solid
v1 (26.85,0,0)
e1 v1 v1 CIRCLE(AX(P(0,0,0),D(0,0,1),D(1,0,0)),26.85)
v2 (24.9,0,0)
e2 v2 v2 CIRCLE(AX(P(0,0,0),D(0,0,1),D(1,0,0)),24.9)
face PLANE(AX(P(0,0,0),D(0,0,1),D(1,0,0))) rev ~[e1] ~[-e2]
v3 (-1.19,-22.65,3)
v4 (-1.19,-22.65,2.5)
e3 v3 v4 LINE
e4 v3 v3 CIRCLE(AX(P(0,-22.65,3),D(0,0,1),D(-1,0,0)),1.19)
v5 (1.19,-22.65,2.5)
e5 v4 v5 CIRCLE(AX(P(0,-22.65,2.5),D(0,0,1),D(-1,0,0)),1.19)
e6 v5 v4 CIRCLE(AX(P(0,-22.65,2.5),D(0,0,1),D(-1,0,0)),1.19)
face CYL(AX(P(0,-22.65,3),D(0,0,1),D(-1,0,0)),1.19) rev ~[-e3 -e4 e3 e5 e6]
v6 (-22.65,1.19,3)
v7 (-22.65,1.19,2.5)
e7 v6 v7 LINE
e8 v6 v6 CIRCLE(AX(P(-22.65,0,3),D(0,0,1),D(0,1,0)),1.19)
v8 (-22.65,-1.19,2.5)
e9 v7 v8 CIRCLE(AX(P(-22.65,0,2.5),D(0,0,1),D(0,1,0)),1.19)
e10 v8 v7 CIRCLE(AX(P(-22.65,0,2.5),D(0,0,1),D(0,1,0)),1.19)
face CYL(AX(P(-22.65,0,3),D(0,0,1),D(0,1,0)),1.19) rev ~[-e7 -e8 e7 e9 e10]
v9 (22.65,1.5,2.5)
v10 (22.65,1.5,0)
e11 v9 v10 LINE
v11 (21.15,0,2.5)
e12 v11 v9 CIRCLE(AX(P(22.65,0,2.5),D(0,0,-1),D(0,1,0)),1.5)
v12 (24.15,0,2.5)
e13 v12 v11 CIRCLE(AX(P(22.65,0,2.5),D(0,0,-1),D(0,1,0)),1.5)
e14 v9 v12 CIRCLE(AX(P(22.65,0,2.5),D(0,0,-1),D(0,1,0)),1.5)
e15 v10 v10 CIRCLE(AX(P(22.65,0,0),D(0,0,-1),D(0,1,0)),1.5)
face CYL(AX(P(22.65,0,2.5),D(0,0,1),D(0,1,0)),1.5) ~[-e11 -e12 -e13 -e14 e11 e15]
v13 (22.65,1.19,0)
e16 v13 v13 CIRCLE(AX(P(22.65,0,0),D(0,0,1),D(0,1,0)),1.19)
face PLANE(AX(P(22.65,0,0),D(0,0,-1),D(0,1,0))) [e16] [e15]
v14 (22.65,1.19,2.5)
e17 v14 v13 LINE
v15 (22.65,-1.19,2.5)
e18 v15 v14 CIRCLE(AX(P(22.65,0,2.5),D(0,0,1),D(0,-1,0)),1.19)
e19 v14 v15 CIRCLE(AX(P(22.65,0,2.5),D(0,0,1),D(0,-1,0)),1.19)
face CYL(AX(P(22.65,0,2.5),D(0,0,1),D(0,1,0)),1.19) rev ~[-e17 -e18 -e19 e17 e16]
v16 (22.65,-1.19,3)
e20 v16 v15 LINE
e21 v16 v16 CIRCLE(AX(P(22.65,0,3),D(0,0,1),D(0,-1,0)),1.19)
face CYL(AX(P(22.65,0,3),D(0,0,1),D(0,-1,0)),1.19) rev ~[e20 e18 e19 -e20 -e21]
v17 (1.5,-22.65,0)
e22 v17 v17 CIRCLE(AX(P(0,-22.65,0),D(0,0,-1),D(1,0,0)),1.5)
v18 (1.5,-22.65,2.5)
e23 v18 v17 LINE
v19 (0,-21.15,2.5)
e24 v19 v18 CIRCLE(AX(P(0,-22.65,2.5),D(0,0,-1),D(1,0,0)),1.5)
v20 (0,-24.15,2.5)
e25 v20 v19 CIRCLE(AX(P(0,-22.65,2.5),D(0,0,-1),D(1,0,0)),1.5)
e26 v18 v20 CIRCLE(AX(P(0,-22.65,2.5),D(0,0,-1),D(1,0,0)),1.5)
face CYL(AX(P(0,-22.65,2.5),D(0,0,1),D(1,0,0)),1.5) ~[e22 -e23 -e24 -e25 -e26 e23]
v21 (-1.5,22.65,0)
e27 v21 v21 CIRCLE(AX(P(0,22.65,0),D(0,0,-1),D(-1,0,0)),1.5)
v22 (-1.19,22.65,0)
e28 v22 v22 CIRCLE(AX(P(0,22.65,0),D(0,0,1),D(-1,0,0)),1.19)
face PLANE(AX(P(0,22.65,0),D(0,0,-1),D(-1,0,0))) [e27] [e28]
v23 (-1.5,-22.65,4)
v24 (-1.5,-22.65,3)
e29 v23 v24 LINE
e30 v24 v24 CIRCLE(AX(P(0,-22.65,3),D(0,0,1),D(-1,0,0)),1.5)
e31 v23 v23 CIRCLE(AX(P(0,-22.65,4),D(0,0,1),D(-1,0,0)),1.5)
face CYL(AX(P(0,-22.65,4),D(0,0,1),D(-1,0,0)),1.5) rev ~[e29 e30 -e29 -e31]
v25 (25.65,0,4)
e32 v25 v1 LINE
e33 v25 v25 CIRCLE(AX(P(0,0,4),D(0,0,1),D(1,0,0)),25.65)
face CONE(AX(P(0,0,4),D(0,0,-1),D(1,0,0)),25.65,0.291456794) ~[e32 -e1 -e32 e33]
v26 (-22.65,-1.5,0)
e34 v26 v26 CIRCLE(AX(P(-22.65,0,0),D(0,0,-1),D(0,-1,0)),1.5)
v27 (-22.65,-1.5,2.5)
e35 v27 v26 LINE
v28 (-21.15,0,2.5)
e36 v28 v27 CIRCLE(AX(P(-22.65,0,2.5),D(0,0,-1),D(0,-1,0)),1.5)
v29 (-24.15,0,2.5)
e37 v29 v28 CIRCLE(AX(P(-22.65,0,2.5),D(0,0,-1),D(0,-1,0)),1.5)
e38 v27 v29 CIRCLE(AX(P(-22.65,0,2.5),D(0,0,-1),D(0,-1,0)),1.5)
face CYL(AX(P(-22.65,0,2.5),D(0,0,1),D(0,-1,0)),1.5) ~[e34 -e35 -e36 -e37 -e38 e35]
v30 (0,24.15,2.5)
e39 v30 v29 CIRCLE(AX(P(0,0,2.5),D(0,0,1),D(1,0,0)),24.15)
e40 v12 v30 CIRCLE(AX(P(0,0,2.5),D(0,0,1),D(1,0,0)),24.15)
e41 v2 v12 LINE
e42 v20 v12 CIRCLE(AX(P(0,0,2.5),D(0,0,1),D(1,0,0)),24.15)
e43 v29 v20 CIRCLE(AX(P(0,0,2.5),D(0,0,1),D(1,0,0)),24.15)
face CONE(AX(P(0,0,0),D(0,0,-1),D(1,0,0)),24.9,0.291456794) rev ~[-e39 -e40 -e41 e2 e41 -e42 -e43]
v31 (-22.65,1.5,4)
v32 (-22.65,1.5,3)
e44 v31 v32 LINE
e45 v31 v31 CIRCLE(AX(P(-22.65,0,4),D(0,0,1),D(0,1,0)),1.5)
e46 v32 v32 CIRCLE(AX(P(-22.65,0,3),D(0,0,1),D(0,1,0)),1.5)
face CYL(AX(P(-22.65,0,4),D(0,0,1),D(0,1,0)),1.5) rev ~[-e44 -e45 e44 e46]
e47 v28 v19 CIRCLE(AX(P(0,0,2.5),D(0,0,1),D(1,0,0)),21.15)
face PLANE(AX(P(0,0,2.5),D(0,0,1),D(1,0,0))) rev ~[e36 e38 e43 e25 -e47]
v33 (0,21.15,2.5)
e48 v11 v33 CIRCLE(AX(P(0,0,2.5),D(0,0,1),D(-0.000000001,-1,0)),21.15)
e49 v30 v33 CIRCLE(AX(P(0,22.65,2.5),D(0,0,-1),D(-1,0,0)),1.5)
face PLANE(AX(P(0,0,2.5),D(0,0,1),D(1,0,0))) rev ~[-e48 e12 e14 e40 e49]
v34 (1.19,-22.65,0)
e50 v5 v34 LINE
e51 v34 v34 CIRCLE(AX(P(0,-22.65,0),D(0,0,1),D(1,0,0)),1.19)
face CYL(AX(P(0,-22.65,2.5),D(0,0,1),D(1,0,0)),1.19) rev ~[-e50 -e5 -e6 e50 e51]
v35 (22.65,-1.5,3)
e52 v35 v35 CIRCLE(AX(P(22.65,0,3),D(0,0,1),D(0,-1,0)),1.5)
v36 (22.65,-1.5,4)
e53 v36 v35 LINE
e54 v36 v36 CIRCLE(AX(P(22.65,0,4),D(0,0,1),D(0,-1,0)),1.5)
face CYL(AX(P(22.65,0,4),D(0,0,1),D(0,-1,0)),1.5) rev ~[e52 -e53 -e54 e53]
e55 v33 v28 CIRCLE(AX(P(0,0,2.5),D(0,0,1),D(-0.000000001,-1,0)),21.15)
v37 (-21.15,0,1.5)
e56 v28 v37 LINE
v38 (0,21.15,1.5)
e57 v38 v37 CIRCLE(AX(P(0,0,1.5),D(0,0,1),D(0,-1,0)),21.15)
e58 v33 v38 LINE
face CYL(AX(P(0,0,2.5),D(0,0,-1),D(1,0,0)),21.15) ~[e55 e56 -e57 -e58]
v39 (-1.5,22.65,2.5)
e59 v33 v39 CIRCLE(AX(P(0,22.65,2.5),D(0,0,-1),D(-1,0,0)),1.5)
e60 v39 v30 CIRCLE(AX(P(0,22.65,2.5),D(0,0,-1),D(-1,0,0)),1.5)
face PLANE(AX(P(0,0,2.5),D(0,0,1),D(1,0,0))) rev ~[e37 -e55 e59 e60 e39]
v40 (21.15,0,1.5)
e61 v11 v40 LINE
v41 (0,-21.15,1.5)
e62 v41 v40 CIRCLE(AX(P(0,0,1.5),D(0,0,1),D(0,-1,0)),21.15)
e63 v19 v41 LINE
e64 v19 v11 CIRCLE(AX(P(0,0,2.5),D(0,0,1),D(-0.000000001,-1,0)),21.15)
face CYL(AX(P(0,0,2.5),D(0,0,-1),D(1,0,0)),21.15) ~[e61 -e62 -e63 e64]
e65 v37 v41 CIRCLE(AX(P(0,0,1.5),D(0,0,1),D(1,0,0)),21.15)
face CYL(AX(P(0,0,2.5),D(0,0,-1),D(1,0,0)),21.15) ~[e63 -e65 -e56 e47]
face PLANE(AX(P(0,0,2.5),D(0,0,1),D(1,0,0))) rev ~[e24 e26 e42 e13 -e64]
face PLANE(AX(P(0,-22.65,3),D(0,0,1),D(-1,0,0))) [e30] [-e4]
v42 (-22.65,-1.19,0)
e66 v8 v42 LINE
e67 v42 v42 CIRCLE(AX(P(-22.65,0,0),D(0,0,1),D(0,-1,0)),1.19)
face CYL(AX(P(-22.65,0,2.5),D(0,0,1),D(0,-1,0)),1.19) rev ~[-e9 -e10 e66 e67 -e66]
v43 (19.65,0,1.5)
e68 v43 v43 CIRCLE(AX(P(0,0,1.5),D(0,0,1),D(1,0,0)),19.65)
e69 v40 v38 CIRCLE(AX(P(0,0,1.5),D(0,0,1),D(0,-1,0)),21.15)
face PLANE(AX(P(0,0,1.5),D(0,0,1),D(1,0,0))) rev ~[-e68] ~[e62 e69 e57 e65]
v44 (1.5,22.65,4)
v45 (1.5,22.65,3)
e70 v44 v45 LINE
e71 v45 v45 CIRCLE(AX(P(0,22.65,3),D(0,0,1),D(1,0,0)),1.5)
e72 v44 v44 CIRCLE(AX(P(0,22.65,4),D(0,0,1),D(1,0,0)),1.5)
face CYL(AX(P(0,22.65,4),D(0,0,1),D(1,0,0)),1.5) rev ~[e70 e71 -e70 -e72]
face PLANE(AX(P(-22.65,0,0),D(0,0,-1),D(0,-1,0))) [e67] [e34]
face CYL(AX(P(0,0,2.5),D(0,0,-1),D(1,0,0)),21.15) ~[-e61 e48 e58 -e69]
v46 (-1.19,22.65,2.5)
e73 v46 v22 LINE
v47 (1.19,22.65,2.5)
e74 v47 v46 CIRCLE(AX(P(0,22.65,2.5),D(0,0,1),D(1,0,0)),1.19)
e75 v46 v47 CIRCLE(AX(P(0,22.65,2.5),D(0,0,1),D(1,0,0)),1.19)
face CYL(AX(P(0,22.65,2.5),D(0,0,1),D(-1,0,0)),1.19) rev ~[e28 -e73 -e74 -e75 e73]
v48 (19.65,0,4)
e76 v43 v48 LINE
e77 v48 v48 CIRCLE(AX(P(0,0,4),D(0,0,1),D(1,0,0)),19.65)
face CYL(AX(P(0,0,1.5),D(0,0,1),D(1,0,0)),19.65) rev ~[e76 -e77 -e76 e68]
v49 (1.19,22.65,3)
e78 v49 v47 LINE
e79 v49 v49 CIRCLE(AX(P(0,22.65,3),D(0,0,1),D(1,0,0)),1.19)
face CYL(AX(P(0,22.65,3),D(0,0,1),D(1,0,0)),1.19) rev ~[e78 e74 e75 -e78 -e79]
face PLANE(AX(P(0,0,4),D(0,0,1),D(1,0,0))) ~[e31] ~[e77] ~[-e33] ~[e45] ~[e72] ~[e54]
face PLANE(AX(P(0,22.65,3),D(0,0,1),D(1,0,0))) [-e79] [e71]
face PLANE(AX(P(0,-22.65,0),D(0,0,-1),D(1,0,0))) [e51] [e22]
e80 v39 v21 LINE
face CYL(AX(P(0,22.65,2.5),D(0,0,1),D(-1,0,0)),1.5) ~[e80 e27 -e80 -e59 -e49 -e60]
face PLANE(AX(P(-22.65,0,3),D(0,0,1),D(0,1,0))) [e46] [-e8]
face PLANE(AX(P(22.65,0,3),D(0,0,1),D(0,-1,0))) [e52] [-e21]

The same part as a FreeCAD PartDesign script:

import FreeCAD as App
import Part
import Sketcher

V = App.Vector


def add_polygon(sketch, points):
    """Adds a closed chain of lines whose ends are joined by coincident constraints."""
    first, n = sketch.GeometryCount, len(points)
    for a, b in zip(points, points[1:] + points[:1]):
        sketch.addGeometry(Part.LineSegment(App.Vector(*a, 0), App.Vector(*b, 0)), False)
    for i in range(n):
        sketch.addConstraint(Sketcher.Constraint("Coincident", first + i, 2, first + (i + 1) % n, 1))

doc = App.newDocument("Part")
params = doc.addObject("Spreadsheet::Sheet", "Params")
for row, (alias, value) in enumerate([
    ("sketch1_width", "3 mm"),
    ("sketch1_width2", "6 mm"),
    ("sketch1_height", "1 mm"),
    ("sketch1_width3", "1.5 mm"),
    ("sketch1_height2", "2.5 mm"),
    ("revolution_angle", "360 deg"),
    ("sketch2_diameter", "3 mm"),
    ("pocket1_length", "1 mm"),
    ("sketch3_diameter", "2.38 mm"),
    ("sketch4_diameter", "3 mm"),
    ("pad1_length", "2.5 mm"),
    ("sketch5_diameter", "2.38 mm"),
], start=1):
    params.set(f"A{row}", alias)
    params.set(f"B{row}", "=" + value)
    params.setAlias(f"B{row}", alias)

body = doc.addObject("PartDesign::Body", "Body")

# Sketch on XZ plane
sketch1 = body.newObject("Sketcher::SketchObject", "Sketch")
sketch1.AttachmentSupport = (doc.getObject("XZ_Plane"), [""])
sketch1.MapMode = "FlatFace"
add_polygon(sketch1, [(19.65, 4), (19.65, 1.5), (21.15, 1.5), (21.15, 2.5), (24.15, 2.5), (24.9, 0), (26.85, 0), (25.65, 4)])  # lines 0-7
sketch1.addConstraint(Sketcher.Constraint("Vertical", 0))
sketch1.addConstraint(Sketcher.Constraint("Horizontal", 1))
sketch1.addConstraint(Sketcher.Constraint("Vertical", 2))
sketch1.addConstraint(Sketcher.Constraint("Horizontal", 3))
sketch1.addConstraint(Sketcher.Constraint("Horizontal", 5))
sketch1.addConstraint(Sketcher.Constraint("Horizontal", 7))
sketch1.addConstraint(Sketcher.Constraint("PointOnObject", 4, 2, -1))
sketch1.addConstraint(Sketcher.Constraint("Parallel", 4, 6))
sketch1.addConstraint(Sketcher.Constraint("DistanceX", 3, 1, 3, 2, 3.0))
sketch1.addConstraint(Sketcher.Constraint("DistanceX", 7, 2, 7, 1, 6.0))
sketch1.addConstraint(Sketcher.Constraint("DistanceY", 2, 1, 2, 2, 1.0))
sketch1.addConstraint(Sketcher.Constraint("DistanceX", 1, 1, 1, 2, 1.5))
sketch1.addConstraint(Sketcher.Constraint("DistanceY", 0, 2, 0, 1, 2.5))
sketch1.addConstraint(Sketcher.Constraint("DistanceY", -1, 1, 6, 2, 4.0))
sketch1.addConstraint(Sketcher.Constraint("DistanceX", 5, 1, 5, 2, 1.95))
sketch1.addConstraint(Sketcher.Constraint("DistanceX", -1, 1, 4, 2, 24.9))
sketch1.setExpression("Constraints[16]", "Params.sketch1_width")
sketch1.setExpression("Constraints[17]", "Params.sketch1_width2")
sketch1.setExpression("Constraints[18]", "Params.sketch1_height")
sketch1.setExpression("Constraints[19]", "Params.sketch1_width3")
sketch1.setExpression("Constraints[20]", "Params.sketch1_height2")
revolution = body.newObject("PartDesign::Revolution", "Revolution")
revolution.Profile = sketch1
revolution.ReferenceAxis = (sketch1, ["V_Axis"])
revolution.setExpression("Angle", "Params.revolution_angle")

# Sketch on XY plane
sketch2 = body.newObject("Sketcher::SketchObject", "Sketch001")
sketch2.AttachmentSupport = (doc.getObject("XY_Plane"), [""])
sketch2.MapMode = "FlatFace"
sketch2.AttachmentOffset = App.Placement(V(0, 0, 4), App.Rotation())
sketch2.addGeometry(Part.Circle(V(0, -22.65, 0), V(0, 0, 1), 1.5), False)
sketch2.addConstraint(Sketcher.Constraint("PointOnObject", 0, 3, -2))
sketch2.addConstraint(Sketcher.Constraint("Diameter", 0, 3.0))
sketch2.addConstraint(Sketcher.Constraint("DistanceY", 0, 3, -1, 1, 22.65))
sketch2.setExpression("Constraints[1]", "Params.sketch2_diameter")
pocket1 = body.newObject("PartDesign::Pocket", "Pocket")
pocket1.Profile = sketch2
pocket1.setExpression("Length", "Params.pocket1_length")
doc.recompute()

polarpattern = body.newObject("PartDesign::PolarPattern", "PolarPattern")
polarpattern.Originals = [pocket1]
polarpattern.Axis = (doc.getObject("Z_Axis"), [""])
polarpattern.Angle = 360
polarpattern.Occurrences = 4
body.Tip = polarpattern

# Sketch on XY plane
sketch3 = body.newObject("Sketcher::SketchObject", "Sketch002")
sketch3.AttachmentSupport = (doc.getObject("XY_Plane"), [""])
sketch3.MapMode = "FlatFace"
sketch3.AttachmentOffset = App.Placement(V(0, 0, 3), App.Rotation())
sketch3.addGeometry(Part.Circle(V(0, -22.65, 0), V(0, 0, 1), 1.19), False)
sketch3.addConstraint(Sketcher.Constraint("PointOnObject", 0, 3, -2))
sketch3.addConstraint(Sketcher.Constraint("Diameter", 0, 2.38))
sketch3.addConstraint(Sketcher.Constraint("DistanceY", 0, 3, -1, 1, 22.65))
sketch3.setExpression("Constraints[1]", "Params.sketch3_diameter")
pocket2 = body.newObject("PartDesign::Pocket", "Pocket001")
pocket2.Profile = sketch3
pocket2.Type = "ThroughAll"
doc.recompute()

polarpattern2 = body.newObject("PartDesign::PolarPattern", "PolarPattern001")
polarpattern2.Originals = [pocket2]
polarpattern2.Axis = (doc.getObject("Z_Axis"), [""])
polarpattern2.Angle = 360
polarpattern2.Occurrences = 4
body.Tip = polarpattern2

# Sketch on XY plane
sketch4 = body.newObject("Sketcher::SketchObject", "Sketch003")
sketch4.AttachmentSupport = (doc.getObject("XY_Plane"), [""])
sketch4.MapMode = "FlatFace"
sketch4.AttachmentOffset = App.Placement(V(0, 0, 2.5), App.Rotation())
sketch4.addGeometry(Part.Circle(V(0, -22.65, 0), V(0, 0, 1), 1.5), False)
sketch4.addConstraint(Sketcher.Constraint("PointOnObject", 0, 3, -2))
sketch4.addConstraint(Sketcher.Constraint("Diameter", 0, 3.0))
sketch4.addConstraint(Sketcher.Constraint("DistanceY", 0, 3, -1, 1, 22.65))
sketch4.setExpression("Constraints[1]", "Params.sketch4_diameter")
pad1 = body.newObject("PartDesign::Pad", "Pad")
pad1.Profile = sketch4
pad1.setExpression("Length", "Params.pad1_length")
pad1.Reversed = True
doc.recompute()

polarpattern3 = body.newObject("PartDesign::PolarPattern", "PolarPattern002")
polarpattern3.Originals = [pad1]
polarpattern3.Axis = (doc.getObject("Z_Axis"), [""])
polarpattern3.Angle = 360
polarpattern3.Occurrences = 4
body.Tip = polarpattern3

# Sketch on XY plane
sketch5 = body.newObject("Sketcher::SketchObject", "Sketch004")
sketch5.AttachmentSupport = (doc.getObject("XY_Plane"), [""])
sketch5.MapMode = "FlatFace"
sketch5.AttachmentOffset = App.Placement(V(0, 0, 2.5), App.Rotation())
sketch5.addGeometry(Part.Circle(V(22.65, 0, 0), V(0, 0, 1), 1.19), False)
sketch5.addConstraint(Sketcher.Constraint("PointOnObject", 0, 3, -1))
sketch5.addConstraint(Sketcher.Constraint("Diameter", 0, 2.38))
sketch5.addConstraint(Sketcher.Constraint("DistanceX", -1, 1, 0, 3, 22.65))
sketch5.setExpression("Constraints[1]", "Params.sketch5_diameter")
pocket3 = body.newObject("PartDesign::Pocket", "Pocket002")
pocket3.Profile = sketch5
pocket3.Type = "ThroughAll"
doc.recompute()

polarpattern4 = body.newObject("PartDesign::PolarPattern", "PolarPattern003")
polarpattern4.Originals = [pocket3]
polarpattern4.Axis = (doc.getObject("Z_Axis"), [""])
polarpattern4.Angle = 360
polarpattern4.Occurrences = 4
body.Tip = polarpattern4

doc.recompute()
